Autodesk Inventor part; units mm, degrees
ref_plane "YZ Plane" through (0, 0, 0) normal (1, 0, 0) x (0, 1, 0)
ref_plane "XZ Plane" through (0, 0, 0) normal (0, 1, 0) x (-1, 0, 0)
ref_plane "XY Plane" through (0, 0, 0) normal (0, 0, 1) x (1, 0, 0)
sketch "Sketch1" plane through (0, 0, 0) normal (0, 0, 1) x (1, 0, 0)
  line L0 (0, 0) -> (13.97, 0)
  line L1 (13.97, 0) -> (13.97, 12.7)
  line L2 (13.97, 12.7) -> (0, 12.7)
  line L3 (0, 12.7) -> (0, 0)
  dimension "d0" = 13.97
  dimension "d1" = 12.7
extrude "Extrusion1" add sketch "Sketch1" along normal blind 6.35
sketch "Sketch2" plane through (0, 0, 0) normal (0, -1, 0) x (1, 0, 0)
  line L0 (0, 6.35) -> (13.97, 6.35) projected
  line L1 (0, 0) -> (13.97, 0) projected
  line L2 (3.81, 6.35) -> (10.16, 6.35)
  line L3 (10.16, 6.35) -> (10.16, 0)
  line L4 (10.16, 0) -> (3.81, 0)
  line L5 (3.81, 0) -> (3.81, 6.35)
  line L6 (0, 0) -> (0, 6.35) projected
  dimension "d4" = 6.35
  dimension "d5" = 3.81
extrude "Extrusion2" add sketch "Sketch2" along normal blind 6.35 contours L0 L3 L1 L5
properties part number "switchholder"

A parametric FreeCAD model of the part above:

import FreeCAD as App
import Part
import Sketcher

V = App.Vector
Q = App.Units.Quantity


def add_polygon(sketch, points):
    """Adds a closed chain of lines whose ends are joined by coincident constraints."""
    first, n = sketch.GeometryCount, len(points)
    for a, b in zip(points, points[1:] + points[:1]):
        sketch.addGeometry(Part.LineSegment(App.Vector(*a, 0), App.Vector(*b, 0)), False)
    for i in range(n):
        sketch.addConstraint(Sketcher.Constraint("Coincident", first + i, 2, first + (i + 1) % n, 1))

doc = App.newDocument("Part")
body = doc.addObject("PartDesign::Body", "Body")

# Sketch on XY plane
sketch1 = body.newObject("Sketcher::SketchObject", "Sketch")
sketch1.AttachmentSupport = (doc.getObject("XY_Plane"), [""])
sketch1.MapMode = "FlatFace"
add_polygon(sketch1, [(0, 13), (0, 0), (14, 0), (14, 13)])  # lines 0-3
sketch1.addConstraint([
    Sketcher.Constraint("Vertical", 0),
    Sketcher.Constraint("Horizontal", 1),
    Sketcher.Constraint("Vertical", 2),
    Sketcher.Constraint("Horizontal", 3),
    Sketcher.Constraint("Coincident", 0, 2, -1, 1),
    Sketcher.Constraint("DistanceY", 0, 2, 0, 1, Q("0.5 in")),
    Sketcher.Constraint("DistanceX", 1, 1, 1, 2, Q("0.55 in")),
])
pad1 = body.newObject("PartDesign::Pad", "Pad")
pad1.Profile = sketch1
pad1.Length = Q("0.25 in")

# Sketch on XZ plane
sketch2 = body.newObject("Sketcher::SketchObject", "Sketch001")
sketch2.AttachmentSupport = (doc.getObject("XZ_Plane"), [""])
sketch2.MapMode = "FlatFace"
add_polygon(sketch2, [(10, 6), (4, 6), (4, 0), (10, 0)])  # lines 0-3
sketch2.addConstraint([
    Sketcher.Constraint("Horizontal", 0),
    Sketcher.Constraint("Vertical", 1),
    Sketcher.Constraint("Horizontal", 2),
    Sketcher.Constraint("Vertical", 3),
    Sketcher.Constraint("PointOnObject", 1, 2, -1),
    Sketcher.Constraint("Equal", 2, 1),
    Sketcher.Constraint("DistanceX", 0, 2, 0, 1, Q("0.25 in")),
    Sketcher.Constraint("DistanceX", -1, 1, 0, 2, Q("0.15 in")),
])
pad2 = body.newObject("PartDesign::Pad", "Pad001")
pad2.Profile = sketch2
pad2.Length = Q("0.25 in")

doc.recompute()
